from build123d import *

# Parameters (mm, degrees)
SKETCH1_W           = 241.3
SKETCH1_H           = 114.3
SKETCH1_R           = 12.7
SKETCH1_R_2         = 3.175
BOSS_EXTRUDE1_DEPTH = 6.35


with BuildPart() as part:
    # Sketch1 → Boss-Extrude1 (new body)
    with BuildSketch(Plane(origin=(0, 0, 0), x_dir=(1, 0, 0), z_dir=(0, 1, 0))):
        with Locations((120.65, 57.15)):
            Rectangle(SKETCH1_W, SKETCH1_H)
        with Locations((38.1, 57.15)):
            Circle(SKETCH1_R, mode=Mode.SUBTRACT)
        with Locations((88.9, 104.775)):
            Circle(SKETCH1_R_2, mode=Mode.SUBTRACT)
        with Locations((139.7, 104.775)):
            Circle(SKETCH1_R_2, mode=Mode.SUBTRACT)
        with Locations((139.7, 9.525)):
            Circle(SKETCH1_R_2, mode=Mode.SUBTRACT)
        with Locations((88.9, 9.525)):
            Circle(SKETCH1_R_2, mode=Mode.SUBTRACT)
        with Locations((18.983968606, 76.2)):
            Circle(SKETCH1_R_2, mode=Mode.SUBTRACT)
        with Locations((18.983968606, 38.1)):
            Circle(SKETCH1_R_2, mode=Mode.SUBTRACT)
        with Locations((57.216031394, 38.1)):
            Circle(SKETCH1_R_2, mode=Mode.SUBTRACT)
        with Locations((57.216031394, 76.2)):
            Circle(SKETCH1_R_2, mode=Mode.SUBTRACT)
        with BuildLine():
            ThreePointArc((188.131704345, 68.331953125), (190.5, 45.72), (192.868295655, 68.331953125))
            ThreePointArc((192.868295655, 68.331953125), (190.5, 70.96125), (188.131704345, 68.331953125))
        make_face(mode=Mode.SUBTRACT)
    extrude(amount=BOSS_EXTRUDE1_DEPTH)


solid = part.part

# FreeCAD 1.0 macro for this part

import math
import FreeCAD as App
import Part
import Sketcher
Q = App.Units.Quantity


def add_polygon(sketch, points):
    """Adds a closed chain of lines whose ends are joined by coincident constraints."""
    first, n = sketch.GeometryCount, len(points)
    for a, b in zip(points, points[1:] + points[:1]):
        sketch.addGeometry(Part.LineSegment(App.Vector(*a, 0), App.Vector(*b, 0)), False)
    for i in range(n):
        sketch.addConstraint(Sketcher.Constraint("Coincident", first + i, 2, first + (i + 1) % n, 1))

doc = App.newDocument("Part")
body = doc.addObject("PartDesign::Body", "Body")

sketch1 = doc.addObject("Sketcher::SketchObject", "Sketch")
body.addObject(sketch1)
sketch1.AttachmentSupport = (doc.XZ_Plane, [""])
sketch1.MapMode = "FlatFace"
add_polygon(sketch1, [(0, -114.3), (0, 0), (241.3, 0), (241.3, -114.3)])
sketch1.addGeometry(Part.Circle(App.Vector(88.9, -9.5, 0), App.Vector(0, 0, 1), 3.2), False)
sketch1.addGeometry(Part.Circle(App.Vector(19, -38.1, 0), App.Vector(0, 0, 1), 3.2), False)
sketch1.addGeometry(Part.Circle(App.Vector(57.2, -38.1, 0), App.Vector(0, 0, 1), 3.2), False)
sketch1.addGeometry(Part.Circle(App.Vector(38.1, -57.1, 0), App.Vector(0, 0, 1), 12.7), False)
sketch1.addGeometry(Part.Circle(App.Vector(139.7, -9.5, 0), App.Vector(0, 0, 1), 3.2), False)
sketch1.addGeometry(Part.Circle(App.Vector(19, -76.2, 0), App.Vector(0, 0, 1), 3.2), False)
sketch1.addGeometry(Part.Circle(App.Vector(57.2, -76.2, 0), App.Vector(0, 0, 1), 3.2), False)
sketch1.addGeometry(Part.Circle(App.Vector(88.9, -104.8, 0), App.Vector(0, 0, 1), 3.2), False)
sketch1.addGeometry(Part.ArcOfCircle(Part.Circle(App.Vector(190.5, -57.1, 0), App.Vector(0, 0, 1), 11.4), math.radians(-78), math.radians(258)), False)
sketch1.addGeometry(Part.ArcOfCircle(Part.Circle(App.Vector(190.5, -68.6, 0), App.Vector(0, 0, 1), 2.4), math.radians(174), math.radians(366)), False)
sketch1.addGeometry(Part.Circle(App.Vector(139.7, -104.8, 0), App.Vector(0, 0, 1), 3.2), False)
sketch1.addConstraint([
    Sketcher.Constraint("Coincident", 12, 1, 13, 2),
    Sketcher.Constraint("Coincident", 13, 1, 12, 2),
    Sketcher.Constraint("Vertical", 0),
    Sketcher.Constraint("Horizontal", 1),
    Sketcher.Constraint("Vertical", 2),
    Sketcher.Constraint("Horizontal", 3),
    Sketcher.Constraint("Coincident", 0, 2, -1, 1),
    Sketcher.Constraint("Equal", 4, 5),
    Sketcher.Constraint("Equal", 5, 6),
    Sketcher.Constraint("Equal", 6, 8),
    Sketcher.Constraint("Equal", 8, 9),
    Sketcher.Constraint("Equal", 9, 10),
    Sketcher.Constraint("Equal", 10, 11),
    Sketcher.Constraint("Equal", 11, 14),
    Sketcher.Constraint("Horizontal", 5, 3, 6, 3),
    Sketcher.Constraint("Horizontal", 4, 3, 8, 3),
    Sketcher.Constraint("Horizontal", 9, 3, 10, 3),
    Sketcher.Constraint("Horizontal", 7, 3, 12, 3),
    Sketcher.Constraint("Horizontal", 11, 3, 14, 3),
    Sketcher.Constraint("Horizontal", 12, 1, 13, 1),
    Sketcher.Constraint("Vertical", 5, 3, 9, 3),
    Sketcher.Constraint("Vertical", 6, 3, 10, 3),
    Sketcher.Constraint("Vertical", 4, 3, 11, 3),
    Sketcher.Constraint("Vertical", 8, 3, 14, 3),
    Sketcher.Constraint("Diameter", 7, Q("1 in")),
    Sketcher.Constraint("Diameter", 4, Q("0.25 in")),
    Sketcher.Constraint("Radius", 12, Q("0.45 in")),
    Sketcher.Constraint("DistanceX", 1, 1, 1, 2, Q("9.5 in")),
    Sketcher.Constraint("DistanceY", 0, 1, 0, 2, Q("4.5 in")),
    Sketcher.Constraint("DistanceY", 9, 3, -1, 1, Q("3 in")),
    Sketcher.Constraint("Radius", 13, Q("0.09375 in")),
    Sketcher.Constraint("DistanceX", 7, 3, 4, 3, Q("2 in")),
    Sketcher.Constraint("DistanceX", 4, 3, 8, 3, Q("2 in")),
    Sketcher.Constraint("DistanceX", 8, 3, 12, 3, Q("2 in")),
    Sketcher.Constraint("DistanceX", 12, 3, 1, 2, Q("2 in")),
    Sketcher.Constraint("DistanceY", 3, 2, 5, 3, Q("3 in")),
    Sketcher.Constraint("DistanceY", 13, 3, -1, 1, Q("2.7 in")),
    Sketcher.Constraint("DistanceY", 7, 3, -1, 1, Q("2.25 in")),
    Sketcher.Constraint("DistanceY", 11, 3, 4, 3, Q("3.75 in")),
    Sketcher.Constraint("DistanceY", 4, 3, -1, 1, Q("0.375 in")),
    Sketcher.Constraint("DistanceX", -1, 1, 5, 3, Q("18.983969 mm")),
    Sketcher.Constraint("DistanceX", -1, 1, 6, 3, Q("57.216031 mm")),
])
pad1 = doc.addObject("PartDesign::Pad", "Pad")
body.addObject(pad1)
pad1.Profile = sketch1
pad1.Length = Q("0.25 in")
pad1.Reversed = True

doc.recompute()
